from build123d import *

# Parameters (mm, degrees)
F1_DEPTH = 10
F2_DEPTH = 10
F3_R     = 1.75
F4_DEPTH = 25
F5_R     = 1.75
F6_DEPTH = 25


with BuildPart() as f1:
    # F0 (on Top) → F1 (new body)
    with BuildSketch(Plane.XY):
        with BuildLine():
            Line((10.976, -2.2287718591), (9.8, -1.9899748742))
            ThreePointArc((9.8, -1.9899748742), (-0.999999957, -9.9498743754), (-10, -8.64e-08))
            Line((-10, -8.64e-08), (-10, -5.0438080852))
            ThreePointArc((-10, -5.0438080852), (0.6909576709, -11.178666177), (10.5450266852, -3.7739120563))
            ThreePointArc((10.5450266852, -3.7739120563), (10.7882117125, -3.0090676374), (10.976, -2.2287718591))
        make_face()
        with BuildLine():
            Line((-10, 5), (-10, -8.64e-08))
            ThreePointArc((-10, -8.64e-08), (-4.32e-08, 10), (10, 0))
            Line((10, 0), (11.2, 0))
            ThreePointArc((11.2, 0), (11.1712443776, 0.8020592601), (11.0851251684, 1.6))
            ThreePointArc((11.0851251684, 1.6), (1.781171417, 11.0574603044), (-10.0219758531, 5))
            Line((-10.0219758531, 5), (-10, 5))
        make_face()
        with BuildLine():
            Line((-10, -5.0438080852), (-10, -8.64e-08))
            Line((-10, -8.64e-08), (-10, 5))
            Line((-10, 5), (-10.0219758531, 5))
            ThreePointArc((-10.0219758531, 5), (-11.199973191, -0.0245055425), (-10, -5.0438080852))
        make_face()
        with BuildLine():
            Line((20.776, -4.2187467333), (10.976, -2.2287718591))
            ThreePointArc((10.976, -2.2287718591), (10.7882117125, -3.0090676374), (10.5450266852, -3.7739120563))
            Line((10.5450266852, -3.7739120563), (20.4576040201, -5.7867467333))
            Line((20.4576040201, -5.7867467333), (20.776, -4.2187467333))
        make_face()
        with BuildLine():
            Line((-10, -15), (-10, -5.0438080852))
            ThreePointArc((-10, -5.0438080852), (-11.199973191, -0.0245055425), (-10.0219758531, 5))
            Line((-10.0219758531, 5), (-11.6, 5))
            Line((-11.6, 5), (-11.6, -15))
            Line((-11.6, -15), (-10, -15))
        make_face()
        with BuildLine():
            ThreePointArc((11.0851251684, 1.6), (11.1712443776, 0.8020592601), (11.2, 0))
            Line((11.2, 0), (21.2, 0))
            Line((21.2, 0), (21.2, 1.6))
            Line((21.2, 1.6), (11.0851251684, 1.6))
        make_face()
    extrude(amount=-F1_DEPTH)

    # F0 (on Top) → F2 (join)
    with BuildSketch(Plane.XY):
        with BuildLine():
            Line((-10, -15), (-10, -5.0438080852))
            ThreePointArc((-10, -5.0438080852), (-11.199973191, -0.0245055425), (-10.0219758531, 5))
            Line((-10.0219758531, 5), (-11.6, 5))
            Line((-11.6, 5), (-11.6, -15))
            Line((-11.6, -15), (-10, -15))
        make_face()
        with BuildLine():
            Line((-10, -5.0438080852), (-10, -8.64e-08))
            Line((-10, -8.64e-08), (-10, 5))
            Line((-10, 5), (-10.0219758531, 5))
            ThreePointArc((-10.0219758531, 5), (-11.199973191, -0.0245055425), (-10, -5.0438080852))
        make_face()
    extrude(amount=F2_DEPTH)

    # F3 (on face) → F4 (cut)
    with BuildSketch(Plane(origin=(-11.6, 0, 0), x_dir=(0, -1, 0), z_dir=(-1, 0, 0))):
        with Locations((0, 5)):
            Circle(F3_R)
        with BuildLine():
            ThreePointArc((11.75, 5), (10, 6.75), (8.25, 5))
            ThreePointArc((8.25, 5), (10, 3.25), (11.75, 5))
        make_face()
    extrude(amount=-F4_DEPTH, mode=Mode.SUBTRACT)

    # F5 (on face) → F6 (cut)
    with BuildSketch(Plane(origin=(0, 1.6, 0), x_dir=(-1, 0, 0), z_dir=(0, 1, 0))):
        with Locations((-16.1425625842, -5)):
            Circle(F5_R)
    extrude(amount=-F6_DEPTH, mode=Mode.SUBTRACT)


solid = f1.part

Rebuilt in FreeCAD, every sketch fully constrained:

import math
import FreeCAD as App
import Part
import Sketcher

V = App.Vector


def add_polygon(sketch, points):
    """Adds a closed chain of lines whose ends are joined by coincident constraints."""
    first, n = sketch.GeometryCount, len(points)
    for a, b in zip(points, points[1:] + points[:1]):
        sketch.addGeometry(Part.LineSegment(App.Vector(*a, 0), App.Vector(*b, 0)), False)
    for i in range(n):
        sketch.addConstraint(Sketcher.Constraint("Coincident", first + i, 2, first + (i + 1) % n, 1))

doc = App.newDocument("Part")
body = doc.addObject("PartDesign::Body", "Body")

# Sketch on XY plane
sketch1 = body.newObject("Sketcher::SketchObject", "Sketch")
sketch1.AttachmentSupport = (doc.getObject("XY_Plane"), [""])
sketch1.MapMode = "FlatFace"
sketch1.addGeometry([
    Part.LineSegment(V(10.976, -2.228772, 0), V(9.8, -1.989975, 0)),  # 0
    Part.ArcOfCircle(Part.Circle(V(0, 0, 0), V(0, 0, 1), 10), math.radians(-180), math.radians(-11.478341)),  # 1
    Part.ArcOfCircle(Part.Circle(V(0, 0, 0), V(0, 0, 1), 10), math.radians(0), math.radians(180)),  # 2
    Part.LineSegment(V(10, 0, 0), V(21.2, 0, 0)),  # 3
    Part.LineSegment(V(21.2, 0, 0), V(21.2, 1.6, 0)),  # 4
    Part.LineSegment(V(21.2, 1.6, 0), V(11.085125, 1.6, 0)),  # 5
    Part.ArcOfCircle(Part.Circle(V(0, 0, 0), V(0, 0, 1), 11.2), math.radians(8.213211), math.radians(153.485225)),  # 6
    Part.LineSegment(V(-10.021976, 5, 0), V(-11.6, 5, 0)),  # 7
    Part.LineSegment(V(-11.6, 5, 0), V(-11.6, -15, 0)),  # 8
    Part.LineSegment(V(-11.6, -15, 0), V(-10, -15, 0)),  # 9
    Part.LineSegment(V(-10, -15, 0), V(-10, -5.043808, 0)),  # 10
    Part.ArcOfCircle(Part.Circle(V(0, 0, 0), V(0, 0, 1), 11.2), math.radians(-153.234499), math.radians(-19.691552)),  # 11
    Part.LineSegment(V(10.545027, -3.773912, 0), V(20.457604, -5.786747, 0)),  # 12
    Part.LineSegment(V(20.457604, -5.786747, 0), V(20.776, -4.218747, 0)),  # 13
    Part.LineSegment(V(20.776, -4.218747, 0), V(10.976, -2.228772, 0)),  # 14
], False)
sketch1.addConstraint([
    Sketcher.Constraint("Coincident", 0, 2, 1, 2),
    Sketcher.Constraint("Tangent", 1, 1, 2, 2),
    Sketcher.Constraint("Coincident", 2, 1, 3, 1),
    Sketcher.Constraint("Coincident", 3, 2, 4, 1),
    Sketcher.Constraint("Coincident", 4, 2, 5, 1),
    Sketcher.Constraint("Coincident", 5, 2, 6, 1),
    Sketcher.Constraint("Coincident", 6, 2, 7, 1),
    Sketcher.Constraint("Coincident", 7, 2, 8, 1),
    Sketcher.Constraint("Coincident", 8, 2, 9, 1),
    Sketcher.Constraint("Coincident", 9, 2, 10, 1),
    Sketcher.Constraint("Coincident", 10, 2, 11, 1),
    Sketcher.Constraint("Coincident", 11, 2, 12, 1),
    Sketcher.Constraint("Coincident", 12, 2, 13, 1),
    Sketcher.Constraint("Coincident", 13, 2, 14, 1),
    Sketcher.Constraint("Coincident", 14, 2, 0, 1),
    Sketcher.Constraint("Horizontal", 3),
    Sketcher.Constraint("Vertical", 4),
    Sketcher.Constraint("Horizontal", 5),
    Sketcher.Constraint("Horizontal", 7),
    Sketcher.Constraint("Vertical", 8),
    Sketcher.Constraint("Horizontal", 9),
    Sketcher.Constraint("Vertical", 10),
    Sketcher.Constraint("Coincident", 1, 3, -1, 1),
    Sketcher.Constraint("Coincident", 6, 3, -1, 1),
    Sketcher.Constraint("Coincident", 11, 3, -1, 1),
    Sketcher.Constraint("Equal", 1, 2),
    Sketcher.Constraint("Equal", 6, 11),
    Sketcher.Constraint("PointOnObject", 1, 1, -1),
    Sketcher.Constraint("PointOnObject", 2, 1, -1),
    Sketcher.Constraint("Parallel", 0, 12),
    Sketcher.Constraint("Perpendicular", 12, 13),
    Sketcher.Constraint("Perpendicular", 13, 14),
    Sketcher.Constraint("Vertical", 1, 1, 9, 2),
    Sketcher.Constraint("Equal", 9, 4),
    Sketcher.Constraint("Radius", 1, 10.0),
    Sketcher.Constraint("Radius", 6, 11.2),
    Sketcher.Constraint("DistanceY", 8, 2, 8, 1, 20.0),
    Sketcher.Constraint("Distance", 14, 10.0),
    Sketcher.Constraint("DistanceX", 3, 1, 3, 2, 11.2),
    Sketcher.Constraint("DistanceX", 9, 1, 9, 2, 1.6),
    Sketcher.Constraint("DistanceY", -1, 1, 6, 2, 5.0),
    Sketcher.Constraint("Distance", 0, 1.2),
    Sketcher.Constraint("Distance", 13, 1.6),
    Sketcher.Constraint("DistanceX", -1, 1, 0, 2, 9.8),
    Sketcher.Constraint("DistanceX", 14, 2, 13, 2, 9.8),
])
pad1 = body.newObject("PartDesign::Pad", "Pad")
pad1.Profile = sketch1
pad1.Length = 10
pad1.Reversed = True

# Sketch on XY plane
sketch2 = body.newObject("Sketcher::SketchObject", "Sketch001")
sketch2.AttachmentSupport = (doc.getObject("XY_Plane"), [""])
sketch2.MapMode = "FlatFace"
add_polygon(sketch2, [(-10, -15), (-10, 5), (-11.6, 5), (-11.6, -15)])  # lines 0-3
sketch2.addConstraint([
    Sketcher.Constraint("Vertical", 0),
    Sketcher.Constraint("Horizontal", 1),
    Sketcher.Constraint("Vertical", 2),
    Sketcher.Constraint("Horizontal", 3),
    Sketcher.Constraint("DistanceY", 0, 1, 0, 2, 20.0),
    Sketcher.Constraint("DistanceX", 1, 2, 1, 1, 1.6),
    Sketcher.Constraint("DistanceX", 0, 2, -1, 1, 10.0),
    Sketcher.Constraint("DistanceY", -1, 1, 0, 2, 5.0),
])
pad2 = body.newObject("PartDesign::Pad", "Pad001")
pad2.Profile = sketch2
pad2.Length = 10

# Sketch on YZ plane
sketch3 = body.newObject("Sketcher::SketchObject", "Sketch002")
sketch3.AttachmentSupport = (doc.getObject("YZ_Plane"), [""])
sketch3.MapMode = "FlatFace"
sketch3.AttachmentOffset = App.Placement(V(0, 0, -11.6), App.Rotation())
sketch3.addGeometry([
    Part.Circle(V(0, 5, 0), V(0, 0, 1), 1.75),
    Part.Circle(V(-10, 5, 0), V(0, 0, 1), 1.75),
], False)
sketch3.addConstraint([
    Sketcher.Constraint("Equal", 0, 1),
    Sketcher.Constraint("PointOnObject", 0, 3, -2),
    Sketcher.Constraint("Horizontal", 0, 3, 1, 3),
    Sketcher.Constraint("Diameter", 0, 3.5),
    Sketcher.Constraint("DistanceY", -1, 1, 0, 3, 5.0),
    Sketcher.Constraint("DistanceX", 1, 3, -1, 1, 10.0),
])
pocket1 = body.newObject("PartDesign::Pocket", "Pocket")
pocket1.Profile = sketch3
pocket1.Length = 25
pocket1.Reversed = True

# Sketch on XZ plane
sketch4 = body.newObject("Sketcher::SketchObject", "Sketch003")
sketch4.AttachmentSupport = (doc.getObject("XZ_Plane"), [""])
sketch4.MapMode = "FlatFace"
sketch4.AttachmentOffset = App.Placement(V(0, 0, -1.6), App.Rotation())
sketch4.addGeometry(Part.Circle(V(16.142563, -5, 0), V(0, 0, 1), 1.75), False)
sketch4.addConstraint([
    Sketcher.Constraint("Diameter", 0, 3.5),
    Sketcher.Constraint("DistanceY", 0, 3, -1, 1, 5.0),
    Sketcher.Constraint("DistanceX", -1, 1, 0, 3, 16.142563),
])
pocket2 = body.newObject("PartDesign::Pocket", "Pocket001")
pocket2.Profile = sketch4
pocket2.Length = 25
pocket2.Reversed = True

doc.recompute()
